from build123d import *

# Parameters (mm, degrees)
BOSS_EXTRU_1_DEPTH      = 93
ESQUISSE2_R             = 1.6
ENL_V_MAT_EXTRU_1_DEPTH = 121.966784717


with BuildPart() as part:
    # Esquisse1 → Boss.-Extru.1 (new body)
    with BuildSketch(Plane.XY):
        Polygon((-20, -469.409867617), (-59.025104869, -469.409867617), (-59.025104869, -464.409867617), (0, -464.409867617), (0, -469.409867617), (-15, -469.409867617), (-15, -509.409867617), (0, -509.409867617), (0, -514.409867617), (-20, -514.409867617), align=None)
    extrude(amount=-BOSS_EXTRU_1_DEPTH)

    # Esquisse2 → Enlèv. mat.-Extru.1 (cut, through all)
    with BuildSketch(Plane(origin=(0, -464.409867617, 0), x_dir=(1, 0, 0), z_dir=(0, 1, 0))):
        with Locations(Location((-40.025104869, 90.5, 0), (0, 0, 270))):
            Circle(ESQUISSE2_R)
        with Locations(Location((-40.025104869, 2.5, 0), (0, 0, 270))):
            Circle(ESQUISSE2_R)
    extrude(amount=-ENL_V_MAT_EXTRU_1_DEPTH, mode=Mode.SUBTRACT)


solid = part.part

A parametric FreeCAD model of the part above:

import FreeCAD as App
import Part
import Sketcher
from FreeCAD import Vector
Q = App.Units.Quantity

doc = App.newDocument("Part")
body = doc.addObject("PartDesign::Body", "Body")

# Sketch on XY plane
sketch1 = doc.addObject("Sketcher::SketchObject", "Sketch")
body.addObject(sketch1)
sketch1.AttachmentSupport = (doc.XY_Plane, [""])
sketch1.MapMode = "FlatFace"
sketch1.addGeometry([
    Part.LineSegment(Vector(-59, -469, 0), Vector(-20, -469, 0)),  # 0
    Part.LineSegment(Vector(-20, -469, 0), Vector(-20, -514, 0)),  # 1
    Part.LineSegment(Vector(-20, -514, 0), Vector(0, -514, 0)),  # 2
    Part.LineSegment(Vector(0, -514, 0), Vector(0, -509, 0)),  # 3
    Part.LineSegment(Vector(0, -509, 0), Vector(-15, -509, 0)),  # 4
    Part.LineSegment(Vector(-15, -509, 0), Vector(-15, -469, 0)),  # 5
    Part.LineSegment(Vector(-15, -469, 0), Vector(0, -469, 0)),  # 6
    Part.LineSegment(Vector(0, -469, 0), Vector(0, -464, 0)),  # 7
    Part.LineSegment(Vector(0, -464, 0), Vector(-59, -464, 0)),  # 8
    Part.LineSegment(Vector(-59, -464, 0), Vector(-59, -469, 0)),  # 9
], False)
sketch1.addConstraint([
    Sketcher.Constraint("Coincident", 0, 2, 1, 1),
    Sketcher.Constraint("Coincident", 1, 2, 2, 1),
    Sketcher.Constraint("Coincident", 2, 2, 3, 1),
    Sketcher.Constraint("Coincident", 3, 2, 4, 1),
    Sketcher.Constraint("Coincident", 4, 2, 5, 1),
    Sketcher.Constraint("Coincident", 5, 2, 6, 1),
    Sketcher.Constraint("Coincident", 6, 2, 7, 1),
    Sketcher.Constraint("Coincident", 7, 2, 8, 1),
    Sketcher.Constraint("Coincident", 8, 2, 9, 1),
    Sketcher.Constraint("Coincident", 9, 2, 0, 1),
    Sketcher.Constraint("Horizontal", 0),
    Sketcher.Constraint("Vertical", 1),
    Sketcher.Constraint("Horizontal", 2),
    Sketcher.Constraint("Vertical", 3),
    Sketcher.Constraint("Horizontal", 4),
    Sketcher.Constraint("Vertical", 5),
    Sketcher.Constraint("Horizontal", 6),
    Sketcher.Constraint("Vertical", 7),
    Sketcher.Constraint("Horizontal", 8),
    Sketcher.Constraint("Vertical", 9),
    Sketcher.Constraint("PointOnObject", 2, 2, -2),
    Sketcher.Constraint("PointOnObject", 6, 2, -2),
    Sketcher.Constraint("Horizontal", 0, 2, 5, 2),
    Sketcher.Constraint("Equal", 3, 7),
    Sketcher.Constraint("DistanceX", 2, 1, 2, 2, Q("20 mm")),
    Sketcher.Constraint("DistanceX", 4, 2, 4, 1, Q("15 mm")),
    Sketcher.Constraint("DistanceY", 1, 2, 1, 1, Q("45 mm")),
    Sketcher.Constraint("DistanceY", 3, 1, 3, 2, Q("5 mm")),
    Sketcher.Constraint("DistanceX", 0, 1, 0, 2, Q("39.025105 mm")),
    Sketcher.Constraint("DistanceY", 0, 2, -1, 1, Q("469.409868 mm")),
])
pad1 = doc.addObject("PartDesign::Pad", "Pad")
body.addObject(pad1)
pad1.Profile = sketch1
pad1.Length = 93
pad1.Reversed = True

# Sketch on XZ plane
sketch2 = doc.addObject("Sketcher::SketchObject", "Sketch001")
body.addObject(sketch2)
sketch2.AttachmentSupport = (doc.XZ_Plane, [""])
sketch2.MapMode = "FlatFace"
sketch2.AttachmentOffset = App.Placement(Vector(0, 0, 464.409868), App.Rotation())
sketch2.addGeometry([
    Part.Circle(Vector(-40, -90.5, 0), Vector(0, 0, 1), 1.6),
    Part.Circle(Vector(-40, -2.5, 0), Vector(0, 0, 1), 1.6),
], False)
sketch2.addConstraint([
    Sketcher.Constraint("Equal", 0, 1),
    Sketcher.Constraint("Vertical", 0, 3, 1, 3),
    Sketcher.Constraint("Diameter", 0, Q("3.2 mm")),
    Sketcher.Constraint("DistanceY", 0, 3, 1, 3, Q("88 mm")),
    Sketcher.Constraint("DistanceY", 0, 3, -1, 1, Q("90.5 mm")),
    Sketcher.Constraint("DistanceX", 0, 3, -1, 1, Q("40.025105 mm")),
])
pocket1 = doc.addObject("PartDesign::Pocket", "Pocket")
body.addObject(pocket1)
pocket1.Profile = sketch2
pocket1.Type = "ThroughAll"
pocket1.Reversed = True

doc.recompute()
